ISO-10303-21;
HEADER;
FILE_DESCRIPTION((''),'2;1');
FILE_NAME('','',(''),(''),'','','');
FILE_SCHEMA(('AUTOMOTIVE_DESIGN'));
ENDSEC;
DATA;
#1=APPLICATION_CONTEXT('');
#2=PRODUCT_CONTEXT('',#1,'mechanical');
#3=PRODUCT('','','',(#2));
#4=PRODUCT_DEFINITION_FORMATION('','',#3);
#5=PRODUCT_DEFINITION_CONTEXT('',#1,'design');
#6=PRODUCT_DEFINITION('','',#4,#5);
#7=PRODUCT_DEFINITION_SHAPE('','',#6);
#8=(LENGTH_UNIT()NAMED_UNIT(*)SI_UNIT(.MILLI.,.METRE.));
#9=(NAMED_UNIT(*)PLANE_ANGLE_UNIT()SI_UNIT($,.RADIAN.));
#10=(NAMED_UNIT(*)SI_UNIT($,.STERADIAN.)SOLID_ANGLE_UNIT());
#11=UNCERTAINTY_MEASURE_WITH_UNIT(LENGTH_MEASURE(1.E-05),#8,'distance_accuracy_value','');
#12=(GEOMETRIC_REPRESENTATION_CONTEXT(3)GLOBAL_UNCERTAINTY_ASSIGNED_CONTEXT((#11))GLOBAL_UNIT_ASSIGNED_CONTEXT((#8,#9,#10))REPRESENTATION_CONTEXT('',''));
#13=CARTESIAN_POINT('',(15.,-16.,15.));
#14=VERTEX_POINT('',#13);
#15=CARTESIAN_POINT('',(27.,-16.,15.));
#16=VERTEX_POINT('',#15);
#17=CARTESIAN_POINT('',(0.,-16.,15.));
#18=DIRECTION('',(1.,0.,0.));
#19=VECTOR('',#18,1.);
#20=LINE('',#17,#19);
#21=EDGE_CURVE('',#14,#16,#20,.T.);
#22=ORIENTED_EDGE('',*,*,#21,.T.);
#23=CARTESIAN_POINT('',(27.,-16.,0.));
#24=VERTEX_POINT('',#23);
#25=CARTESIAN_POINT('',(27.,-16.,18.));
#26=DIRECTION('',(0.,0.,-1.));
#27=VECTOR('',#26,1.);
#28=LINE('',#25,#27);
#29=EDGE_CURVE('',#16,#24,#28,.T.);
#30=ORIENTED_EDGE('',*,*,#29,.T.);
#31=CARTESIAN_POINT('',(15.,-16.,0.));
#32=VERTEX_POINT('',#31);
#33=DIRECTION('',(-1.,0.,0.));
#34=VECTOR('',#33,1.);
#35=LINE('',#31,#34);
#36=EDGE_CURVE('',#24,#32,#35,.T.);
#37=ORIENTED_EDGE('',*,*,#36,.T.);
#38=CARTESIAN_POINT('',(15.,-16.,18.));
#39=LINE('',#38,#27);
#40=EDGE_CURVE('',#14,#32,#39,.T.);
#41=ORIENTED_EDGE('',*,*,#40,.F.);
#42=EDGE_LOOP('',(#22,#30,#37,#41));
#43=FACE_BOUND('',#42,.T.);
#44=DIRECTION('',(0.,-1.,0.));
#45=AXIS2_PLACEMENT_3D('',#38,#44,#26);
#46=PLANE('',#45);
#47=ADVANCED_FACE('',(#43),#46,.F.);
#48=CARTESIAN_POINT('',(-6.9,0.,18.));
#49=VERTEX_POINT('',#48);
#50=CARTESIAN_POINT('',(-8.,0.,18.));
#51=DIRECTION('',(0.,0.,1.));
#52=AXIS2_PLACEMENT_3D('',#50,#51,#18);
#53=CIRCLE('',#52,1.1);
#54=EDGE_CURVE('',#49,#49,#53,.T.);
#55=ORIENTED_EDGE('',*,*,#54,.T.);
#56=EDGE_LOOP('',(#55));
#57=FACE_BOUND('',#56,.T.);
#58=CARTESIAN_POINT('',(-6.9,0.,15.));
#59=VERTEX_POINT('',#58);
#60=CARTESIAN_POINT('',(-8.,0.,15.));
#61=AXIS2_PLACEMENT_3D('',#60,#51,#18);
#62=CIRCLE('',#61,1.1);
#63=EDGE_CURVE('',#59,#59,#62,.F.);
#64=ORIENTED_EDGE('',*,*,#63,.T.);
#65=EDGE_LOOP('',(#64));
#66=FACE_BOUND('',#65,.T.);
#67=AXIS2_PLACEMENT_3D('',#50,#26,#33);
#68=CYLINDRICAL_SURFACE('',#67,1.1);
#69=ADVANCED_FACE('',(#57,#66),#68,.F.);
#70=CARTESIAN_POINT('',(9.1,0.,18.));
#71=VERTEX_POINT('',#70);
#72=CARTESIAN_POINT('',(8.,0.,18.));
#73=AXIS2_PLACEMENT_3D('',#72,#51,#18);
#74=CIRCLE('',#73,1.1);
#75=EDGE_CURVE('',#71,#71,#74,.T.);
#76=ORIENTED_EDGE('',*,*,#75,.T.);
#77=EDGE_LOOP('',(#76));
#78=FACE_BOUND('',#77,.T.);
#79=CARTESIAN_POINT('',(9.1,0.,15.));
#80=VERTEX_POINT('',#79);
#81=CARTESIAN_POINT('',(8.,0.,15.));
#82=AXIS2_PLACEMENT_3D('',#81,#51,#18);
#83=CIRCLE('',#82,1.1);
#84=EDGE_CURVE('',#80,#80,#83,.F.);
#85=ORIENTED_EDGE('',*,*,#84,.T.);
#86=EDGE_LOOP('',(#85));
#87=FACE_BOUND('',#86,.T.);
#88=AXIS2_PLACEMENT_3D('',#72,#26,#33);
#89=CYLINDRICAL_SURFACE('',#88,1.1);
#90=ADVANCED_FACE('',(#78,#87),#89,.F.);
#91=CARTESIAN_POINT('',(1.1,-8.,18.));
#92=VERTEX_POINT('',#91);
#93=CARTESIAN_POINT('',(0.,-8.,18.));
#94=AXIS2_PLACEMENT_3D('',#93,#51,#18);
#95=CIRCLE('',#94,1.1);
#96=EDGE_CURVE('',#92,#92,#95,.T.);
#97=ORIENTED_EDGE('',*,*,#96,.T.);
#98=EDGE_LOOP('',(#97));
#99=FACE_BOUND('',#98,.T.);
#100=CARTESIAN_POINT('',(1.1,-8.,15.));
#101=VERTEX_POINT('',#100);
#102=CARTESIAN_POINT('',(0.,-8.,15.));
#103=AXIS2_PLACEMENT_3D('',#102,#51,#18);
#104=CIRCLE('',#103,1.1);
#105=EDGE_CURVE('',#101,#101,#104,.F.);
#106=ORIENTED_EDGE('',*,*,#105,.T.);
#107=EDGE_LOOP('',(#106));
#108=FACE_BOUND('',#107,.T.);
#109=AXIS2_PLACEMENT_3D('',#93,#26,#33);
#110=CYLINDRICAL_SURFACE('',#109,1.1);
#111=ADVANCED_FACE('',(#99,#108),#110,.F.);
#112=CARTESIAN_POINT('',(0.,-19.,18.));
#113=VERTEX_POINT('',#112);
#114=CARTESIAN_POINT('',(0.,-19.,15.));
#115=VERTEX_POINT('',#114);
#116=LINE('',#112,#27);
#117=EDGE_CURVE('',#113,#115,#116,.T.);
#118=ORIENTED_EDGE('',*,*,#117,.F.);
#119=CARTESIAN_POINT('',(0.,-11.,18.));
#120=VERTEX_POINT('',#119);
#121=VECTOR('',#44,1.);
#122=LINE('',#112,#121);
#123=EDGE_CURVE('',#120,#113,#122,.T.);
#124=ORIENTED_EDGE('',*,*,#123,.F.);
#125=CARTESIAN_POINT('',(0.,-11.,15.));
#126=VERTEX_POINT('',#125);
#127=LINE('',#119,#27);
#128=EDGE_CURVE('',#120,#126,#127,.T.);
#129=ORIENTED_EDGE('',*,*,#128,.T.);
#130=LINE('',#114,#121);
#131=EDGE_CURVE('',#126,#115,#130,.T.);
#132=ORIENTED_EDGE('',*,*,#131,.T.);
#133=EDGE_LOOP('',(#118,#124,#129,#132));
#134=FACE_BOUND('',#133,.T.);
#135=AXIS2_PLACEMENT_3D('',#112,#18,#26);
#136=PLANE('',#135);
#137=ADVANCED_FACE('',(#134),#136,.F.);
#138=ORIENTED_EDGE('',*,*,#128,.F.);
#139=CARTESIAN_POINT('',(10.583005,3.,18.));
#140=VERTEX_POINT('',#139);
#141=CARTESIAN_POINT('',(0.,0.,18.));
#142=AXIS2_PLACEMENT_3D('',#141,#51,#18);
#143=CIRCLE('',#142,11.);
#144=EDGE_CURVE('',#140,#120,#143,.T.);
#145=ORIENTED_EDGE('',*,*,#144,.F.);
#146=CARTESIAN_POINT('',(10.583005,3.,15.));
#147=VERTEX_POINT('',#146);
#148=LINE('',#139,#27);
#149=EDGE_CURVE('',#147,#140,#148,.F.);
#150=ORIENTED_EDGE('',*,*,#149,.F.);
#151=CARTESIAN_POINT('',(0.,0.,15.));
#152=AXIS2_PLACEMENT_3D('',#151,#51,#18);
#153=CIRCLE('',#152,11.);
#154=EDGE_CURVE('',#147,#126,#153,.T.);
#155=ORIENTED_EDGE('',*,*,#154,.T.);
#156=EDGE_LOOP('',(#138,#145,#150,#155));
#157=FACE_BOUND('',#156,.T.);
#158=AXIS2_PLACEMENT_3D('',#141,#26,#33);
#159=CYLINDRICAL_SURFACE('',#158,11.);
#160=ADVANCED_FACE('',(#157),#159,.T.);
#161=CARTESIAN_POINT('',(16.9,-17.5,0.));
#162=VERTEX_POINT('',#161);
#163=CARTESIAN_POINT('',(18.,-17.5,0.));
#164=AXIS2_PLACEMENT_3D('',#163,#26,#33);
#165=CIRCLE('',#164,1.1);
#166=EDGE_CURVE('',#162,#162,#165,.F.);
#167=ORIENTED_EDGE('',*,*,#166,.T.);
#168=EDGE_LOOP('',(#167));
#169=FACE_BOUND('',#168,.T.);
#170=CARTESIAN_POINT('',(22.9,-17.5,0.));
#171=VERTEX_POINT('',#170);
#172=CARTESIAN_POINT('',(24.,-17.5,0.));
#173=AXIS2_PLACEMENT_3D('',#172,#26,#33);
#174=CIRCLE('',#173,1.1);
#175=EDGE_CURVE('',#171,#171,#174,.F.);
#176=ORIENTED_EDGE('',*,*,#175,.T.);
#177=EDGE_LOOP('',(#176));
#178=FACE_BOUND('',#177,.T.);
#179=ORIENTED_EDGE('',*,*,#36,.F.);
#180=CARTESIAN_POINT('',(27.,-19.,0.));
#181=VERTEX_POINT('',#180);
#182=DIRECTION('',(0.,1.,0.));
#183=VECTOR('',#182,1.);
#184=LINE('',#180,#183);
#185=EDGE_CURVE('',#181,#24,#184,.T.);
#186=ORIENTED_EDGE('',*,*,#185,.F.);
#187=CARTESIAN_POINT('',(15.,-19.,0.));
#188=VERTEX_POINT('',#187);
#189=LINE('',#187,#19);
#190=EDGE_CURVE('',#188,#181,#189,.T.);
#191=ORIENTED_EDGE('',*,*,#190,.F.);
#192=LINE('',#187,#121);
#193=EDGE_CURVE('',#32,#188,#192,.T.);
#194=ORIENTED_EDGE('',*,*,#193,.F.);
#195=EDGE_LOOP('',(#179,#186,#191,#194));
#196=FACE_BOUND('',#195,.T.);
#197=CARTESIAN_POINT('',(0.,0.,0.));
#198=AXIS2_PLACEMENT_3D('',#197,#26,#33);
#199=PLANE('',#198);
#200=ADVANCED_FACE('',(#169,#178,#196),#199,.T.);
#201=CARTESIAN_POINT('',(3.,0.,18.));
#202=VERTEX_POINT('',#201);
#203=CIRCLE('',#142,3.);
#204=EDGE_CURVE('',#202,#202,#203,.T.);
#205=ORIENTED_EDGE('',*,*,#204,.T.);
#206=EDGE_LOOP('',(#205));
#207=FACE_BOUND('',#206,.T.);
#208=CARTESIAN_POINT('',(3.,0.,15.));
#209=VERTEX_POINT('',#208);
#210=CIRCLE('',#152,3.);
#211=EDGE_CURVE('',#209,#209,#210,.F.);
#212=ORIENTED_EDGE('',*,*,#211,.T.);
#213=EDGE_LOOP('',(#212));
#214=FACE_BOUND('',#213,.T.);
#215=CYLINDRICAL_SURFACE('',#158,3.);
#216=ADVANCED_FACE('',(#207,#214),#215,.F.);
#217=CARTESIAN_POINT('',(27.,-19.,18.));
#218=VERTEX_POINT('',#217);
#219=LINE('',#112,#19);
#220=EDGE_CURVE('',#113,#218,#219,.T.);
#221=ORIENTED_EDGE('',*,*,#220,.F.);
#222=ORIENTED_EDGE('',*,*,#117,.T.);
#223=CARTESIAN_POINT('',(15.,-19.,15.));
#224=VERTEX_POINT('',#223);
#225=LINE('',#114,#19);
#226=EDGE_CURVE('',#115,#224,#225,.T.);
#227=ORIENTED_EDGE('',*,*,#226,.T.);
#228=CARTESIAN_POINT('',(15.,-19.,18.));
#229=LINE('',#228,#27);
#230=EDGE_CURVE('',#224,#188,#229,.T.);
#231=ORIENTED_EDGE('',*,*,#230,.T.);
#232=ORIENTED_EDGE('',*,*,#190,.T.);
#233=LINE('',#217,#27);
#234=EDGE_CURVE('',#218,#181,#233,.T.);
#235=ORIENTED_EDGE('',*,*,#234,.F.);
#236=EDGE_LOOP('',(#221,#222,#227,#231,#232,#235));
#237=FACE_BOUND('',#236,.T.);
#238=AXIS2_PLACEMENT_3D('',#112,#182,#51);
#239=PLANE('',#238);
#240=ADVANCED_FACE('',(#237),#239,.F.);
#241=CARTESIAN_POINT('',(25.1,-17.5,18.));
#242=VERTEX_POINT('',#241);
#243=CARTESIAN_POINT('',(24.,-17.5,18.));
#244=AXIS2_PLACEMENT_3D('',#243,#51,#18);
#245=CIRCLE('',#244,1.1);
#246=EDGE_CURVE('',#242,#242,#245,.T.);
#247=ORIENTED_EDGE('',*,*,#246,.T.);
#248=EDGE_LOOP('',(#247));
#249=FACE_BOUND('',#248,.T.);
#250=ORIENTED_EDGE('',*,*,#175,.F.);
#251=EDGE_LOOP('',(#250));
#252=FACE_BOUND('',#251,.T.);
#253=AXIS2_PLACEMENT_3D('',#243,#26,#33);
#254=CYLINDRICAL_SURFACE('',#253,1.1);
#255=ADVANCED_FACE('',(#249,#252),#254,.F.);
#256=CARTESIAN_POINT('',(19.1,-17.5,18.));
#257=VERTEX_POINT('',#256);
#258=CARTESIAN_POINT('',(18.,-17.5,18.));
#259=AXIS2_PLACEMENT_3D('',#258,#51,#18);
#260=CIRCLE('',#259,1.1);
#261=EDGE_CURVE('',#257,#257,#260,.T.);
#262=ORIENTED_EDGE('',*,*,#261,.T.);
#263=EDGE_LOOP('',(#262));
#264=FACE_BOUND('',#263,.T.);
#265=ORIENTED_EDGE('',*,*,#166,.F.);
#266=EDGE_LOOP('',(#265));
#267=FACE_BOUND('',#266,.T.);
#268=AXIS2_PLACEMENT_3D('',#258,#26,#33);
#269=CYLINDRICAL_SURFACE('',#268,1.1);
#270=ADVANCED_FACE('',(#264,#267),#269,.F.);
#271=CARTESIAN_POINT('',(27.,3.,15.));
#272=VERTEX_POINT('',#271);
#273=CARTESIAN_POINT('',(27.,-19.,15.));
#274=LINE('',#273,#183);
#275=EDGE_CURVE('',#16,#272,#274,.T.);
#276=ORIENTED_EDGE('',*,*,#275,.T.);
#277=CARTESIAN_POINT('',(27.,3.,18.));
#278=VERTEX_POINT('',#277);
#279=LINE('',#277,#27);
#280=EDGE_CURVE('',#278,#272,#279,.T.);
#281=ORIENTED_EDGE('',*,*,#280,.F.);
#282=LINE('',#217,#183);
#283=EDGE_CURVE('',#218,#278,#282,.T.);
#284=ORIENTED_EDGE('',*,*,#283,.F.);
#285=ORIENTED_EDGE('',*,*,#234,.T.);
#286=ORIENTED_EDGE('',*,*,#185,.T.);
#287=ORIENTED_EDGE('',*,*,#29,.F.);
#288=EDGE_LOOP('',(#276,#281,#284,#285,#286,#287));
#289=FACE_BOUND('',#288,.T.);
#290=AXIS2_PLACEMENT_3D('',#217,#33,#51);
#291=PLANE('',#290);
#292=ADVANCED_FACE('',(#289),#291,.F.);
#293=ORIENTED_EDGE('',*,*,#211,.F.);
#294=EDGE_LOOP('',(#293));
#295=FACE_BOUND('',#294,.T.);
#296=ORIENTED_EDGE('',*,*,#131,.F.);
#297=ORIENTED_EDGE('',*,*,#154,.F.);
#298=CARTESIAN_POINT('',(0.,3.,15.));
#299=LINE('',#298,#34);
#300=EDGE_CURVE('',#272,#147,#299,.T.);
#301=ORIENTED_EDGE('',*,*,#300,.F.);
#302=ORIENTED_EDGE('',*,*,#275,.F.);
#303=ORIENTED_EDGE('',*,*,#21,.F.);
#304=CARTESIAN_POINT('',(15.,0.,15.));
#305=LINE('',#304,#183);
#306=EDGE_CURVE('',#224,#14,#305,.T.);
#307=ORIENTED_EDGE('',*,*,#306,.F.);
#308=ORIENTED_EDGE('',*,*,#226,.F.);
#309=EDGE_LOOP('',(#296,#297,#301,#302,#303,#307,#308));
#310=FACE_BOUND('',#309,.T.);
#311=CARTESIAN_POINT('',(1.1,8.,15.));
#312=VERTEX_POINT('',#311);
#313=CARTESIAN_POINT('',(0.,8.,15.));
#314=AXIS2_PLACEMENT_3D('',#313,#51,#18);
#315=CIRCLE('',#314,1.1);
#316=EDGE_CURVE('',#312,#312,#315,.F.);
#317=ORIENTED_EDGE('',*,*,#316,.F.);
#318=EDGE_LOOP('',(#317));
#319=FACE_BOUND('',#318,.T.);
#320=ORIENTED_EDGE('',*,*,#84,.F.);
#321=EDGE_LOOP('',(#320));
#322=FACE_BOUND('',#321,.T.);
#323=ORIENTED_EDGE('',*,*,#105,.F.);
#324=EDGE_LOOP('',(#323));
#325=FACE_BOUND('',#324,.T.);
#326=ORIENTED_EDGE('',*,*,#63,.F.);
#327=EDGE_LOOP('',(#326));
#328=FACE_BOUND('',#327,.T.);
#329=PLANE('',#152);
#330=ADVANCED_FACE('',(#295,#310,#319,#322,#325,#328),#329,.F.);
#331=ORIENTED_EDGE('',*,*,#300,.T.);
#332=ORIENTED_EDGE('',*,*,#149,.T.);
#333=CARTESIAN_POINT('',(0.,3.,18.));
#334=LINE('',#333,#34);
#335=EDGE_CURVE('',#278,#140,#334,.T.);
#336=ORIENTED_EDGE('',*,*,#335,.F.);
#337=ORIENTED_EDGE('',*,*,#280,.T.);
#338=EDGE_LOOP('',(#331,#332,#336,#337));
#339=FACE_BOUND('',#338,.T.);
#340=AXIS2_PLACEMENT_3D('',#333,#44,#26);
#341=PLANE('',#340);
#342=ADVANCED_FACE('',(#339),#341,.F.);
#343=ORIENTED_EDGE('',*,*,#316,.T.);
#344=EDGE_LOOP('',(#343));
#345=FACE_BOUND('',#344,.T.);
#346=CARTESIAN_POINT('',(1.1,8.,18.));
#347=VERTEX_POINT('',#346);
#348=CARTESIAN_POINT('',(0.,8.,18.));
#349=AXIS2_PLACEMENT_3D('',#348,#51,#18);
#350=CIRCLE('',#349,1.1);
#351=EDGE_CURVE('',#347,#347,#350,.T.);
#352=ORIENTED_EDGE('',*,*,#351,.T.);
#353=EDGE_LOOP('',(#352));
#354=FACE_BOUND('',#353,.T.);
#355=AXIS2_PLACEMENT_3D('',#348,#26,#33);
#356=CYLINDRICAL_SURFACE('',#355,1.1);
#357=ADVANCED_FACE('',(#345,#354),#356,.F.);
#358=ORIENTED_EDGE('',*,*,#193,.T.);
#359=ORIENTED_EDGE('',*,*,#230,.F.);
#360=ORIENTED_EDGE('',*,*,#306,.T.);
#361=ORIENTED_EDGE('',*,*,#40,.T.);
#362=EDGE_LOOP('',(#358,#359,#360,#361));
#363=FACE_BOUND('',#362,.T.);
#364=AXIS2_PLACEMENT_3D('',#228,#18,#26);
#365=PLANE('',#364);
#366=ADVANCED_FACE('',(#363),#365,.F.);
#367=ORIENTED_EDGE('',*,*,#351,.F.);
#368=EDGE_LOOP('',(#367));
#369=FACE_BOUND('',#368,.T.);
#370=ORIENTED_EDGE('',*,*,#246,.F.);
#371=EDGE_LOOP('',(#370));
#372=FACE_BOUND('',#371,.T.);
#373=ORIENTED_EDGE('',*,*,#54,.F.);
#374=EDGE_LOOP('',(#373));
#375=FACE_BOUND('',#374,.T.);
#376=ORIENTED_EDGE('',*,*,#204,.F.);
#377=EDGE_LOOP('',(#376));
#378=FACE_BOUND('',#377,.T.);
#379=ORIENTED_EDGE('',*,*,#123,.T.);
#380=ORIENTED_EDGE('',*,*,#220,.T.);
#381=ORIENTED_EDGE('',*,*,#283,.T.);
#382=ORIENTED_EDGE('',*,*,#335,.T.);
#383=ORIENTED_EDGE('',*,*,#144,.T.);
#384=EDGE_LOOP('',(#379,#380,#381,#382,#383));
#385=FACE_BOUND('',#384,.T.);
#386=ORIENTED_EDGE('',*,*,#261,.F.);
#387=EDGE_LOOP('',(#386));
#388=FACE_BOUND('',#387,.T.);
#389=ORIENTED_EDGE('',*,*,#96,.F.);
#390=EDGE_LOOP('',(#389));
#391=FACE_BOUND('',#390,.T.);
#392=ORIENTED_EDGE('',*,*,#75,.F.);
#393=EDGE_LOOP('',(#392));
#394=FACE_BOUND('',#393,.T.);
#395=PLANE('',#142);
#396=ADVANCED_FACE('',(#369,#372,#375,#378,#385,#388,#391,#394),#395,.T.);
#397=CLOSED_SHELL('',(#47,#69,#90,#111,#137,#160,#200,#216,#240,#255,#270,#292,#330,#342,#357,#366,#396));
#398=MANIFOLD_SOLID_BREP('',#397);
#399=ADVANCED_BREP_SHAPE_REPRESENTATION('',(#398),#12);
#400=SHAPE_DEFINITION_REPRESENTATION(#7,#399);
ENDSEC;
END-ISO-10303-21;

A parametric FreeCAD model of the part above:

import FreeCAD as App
import Part
import Sketcher

V = App.Vector


def add_polygon(sketch, points):
    """Adds a closed chain of lines whose ends are joined by coincident constraints."""
    first, n = sketch.GeometryCount, len(points)
    for a, b in zip(points, points[1:] + points[:1]):
        sketch.addGeometry(Part.LineSegment(App.Vector(*a, 0), App.Vector(*b, 0)), False)
    for i in range(n):
        sketch.addConstraint(Sketcher.Constraint("Coincident", first + i, 2, first + (i + 1) % n, 1))

doc = App.newDocument("Part")
body = doc.addObject("PartDesign::Body", "Body")

# Sketch on XY plane
sketch1 = body.newObject("Sketcher::SketchObject", "Sketch")
sketch1.AttachmentSupport = (doc.getObject("XY_Plane"), [""])
sketch1.MapMode = "FlatFace"
sketch1.AttachmentOffset = App.Placement(V(0, 0, 15), App.Rotation())
sketch1.addGeometry(Part.Circle(V(0, 0, 0), V(0, 0, 1), 11), False)
sketch1.addConstraint(Sketcher.Constraint("Coincident", 0, 3, -1, 1))
sketch1.addConstraint(Sketcher.Constraint("Diameter", 0, 22.0))
pad1 = body.newObject("PartDesign::Pad", "Pad")
pad1.Profile = sketch1
pad1.Length = 3

# Sketch on XY plane
sketch2 = body.newObject("Sketcher::SketchObject", "Sketch001")
sketch2.AttachmentSupport = (doc.getObject("XY_Plane"), [""])
sketch2.MapMode = "FlatFace"
sketch2.AttachmentOffset = App.Placement(V(0, 0, 15), App.Rotation())
add_polygon(sketch2, [(0, 3), (0, -19), (27, -19), (27, 3)])  # lines 0-3
sketch2.addConstraint(Sketcher.Constraint("Vertical", 0))
sketch2.addConstraint(Sketcher.Constraint("Horizontal", 1))
sketch2.addConstraint(Sketcher.Constraint("Vertical", 2))
sketch2.addConstraint(Sketcher.Constraint("Horizontal", 3))
sketch2.addConstraint(Sketcher.Constraint("PointOnObject", 0, 2, -2))
sketch2.addConstraint(Sketcher.Constraint("DistanceX", 1, 1, 1, 2, 27.0))
sketch2.addConstraint(Sketcher.Constraint("DistanceY", 0, 2, 0, 1, 22.0))
sketch2.addConstraint(Sketcher.Constraint("DistanceY", 0, 2, -1, 1, 19.0))
pad2 = body.newObject("PartDesign::Pad", "Pad001")
pad2.Profile = sketch2
pad2.Length = 3

# Sketch on XY plane
sketch3 = body.newObject("Sketcher::SketchObject", "Sketch002")
sketch3.AttachmentSupport = (doc.getObject("XY_Plane"), [""])
sketch3.MapMode = "FlatFace"
add_polygon(sketch3, [(15, -16), (15, -19), (27, -19), (27, -16)])  # lines 0-3
sketch3.addConstraint(Sketcher.Constraint("Vertical", 0))
sketch3.addConstraint(Sketcher.Constraint("Horizontal", 1))
sketch3.addConstraint(Sketcher.Constraint("Vertical", 2))
sketch3.addConstraint(Sketcher.Constraint("Horizontal", 3))
sketch3.addConstraint(Sketcher.Constraint("DistanceX", 1, 1, 1, 2, 12.0))
sketch3.addConstraint(Sketcher.Constraint("DistanceY", 0, 2, 0, 1, 3.0))
sketch3.addConstraint(Sketcher.Constraint("DistanceX", -1, 1, 0, 2, 15.0))
sketch3.addConstraint(Sketcher.Constraint("DistanceY", 0, 2, -1, 1, 19.0))
pad3 = body.newObject("PartDesign::Pad", "Pad002")
pad3.Profile = sketch3
pad3.Length = 18

# Sketch on XY plane
sketch4 = body.newObject("Sketcher::SketchObject", "Sketch003")
sketch4.AttachmentSupport = (doc.getObject("XY_Plane"), [""])
sketch4.MapMode = "FlatFace"
sketch4.AttachmentOffset = App.Placement(V(0, 0, -50), App.Rotation())
sketch4.addGeometry(Part.Circle(V(0, 0, 0), V(0, 0, 1), 3), False)
sketch4.addConstraint(Sketcher.Constraint("Coincident", 0, 3, -1, 1))
sketch4.addConstraint(Sketcher.Constraint("Diameter", 0, 6.0))
pocket1 = body.newObject("PartDesign::Pocket", "Pocket")
pocket1.Profile = sketch4
pocket1.Type = "ThroughAll"
pocket1.Reversed = True

# Sketch on XY plane
sketch5 = body.newObject("Sketcher::SketchObject", "Sketch004")
sketch5.AttachmentSupport = (doc.getObject("XY_Plane"), [""])
sketch5.MapMode = "FlatFace"
sketch5.AttachmentOffset = App.Placement(V(0, 0, -50), App.Rotation())
sketch5.addGeometry(Part.Circle(V(0, -8, 0), V(0, 0, 1), 1.1), False)
sketch5.addGeometry(Part.Circle(V(0, 8, 0), V(0, 0, 1), 1.1), False)
sketch5.addGeometry(Part.Circle(V(-8, 0, 0), V(0, 0, 1), 1.1), False)
sketch5.addGeometry(Part.Circle(V(8, 0, 0), V(0, 0, 1), 1.1), False)
sketch5.addConstraint(Sketcher.Constraint("Equal", 0, 1))
sketch5.addConstraint(Sketcher.Constraint("Equal", 1, 2))
sketch5.addConstraint(Sketcher.Constraint("Equal", 2, 3))
sketch5.addConstraint(Sketcher.Constraint("Symmetric", 0, 3, 1, 3, -1, 1))
sketch5.addConstraint(Sketcher.Constraint("Symmetric", 2, 3, 3, 3, -1, 1))
sketch5.addConstraint(Sketcher.Constraint("PointOnObject", 0, 3, -2))
sketch5.addConstraint(Sketcher.Constraint("PointOnObject", 2, 3, -1))
sketch5.addConstraint(Sketcher.Constraint("Diameter", 0, 2.2))
sketch5.addConstraint(Sketcher.Constraint("DistanceY", 0, 3, -1, 1, 8.0))
sketch5.addConstraint(Sketcher.Constraint("DistanceX", 2, 3, -1, 1, 8.0))
pocket2 = body.newObject("PartDesign::Pocket", "Pocket001")
pocket2.Profile = sketch5
pocket2.Type = "ThroughAll"
pocket2.Reversed = True

# Sketch on XY plane
sketch6 = body.newObject("Sketcher::SketchObject", "Sketch005")
sketch6.AttachmentSupport = (doc.getObject("XY_Plane"), [""])
sketch6.MapMode = "FlatFace"
sketch6.AttachmentOffset = App.Placement(V(0, 0, -50), App.Rotation())
sketch6.addGeometry(Part.Circle(V(18, -17.5, 0), V(0, 0, 1), 1.1), False)
sketch6.addGeometry(Part.Circle(V(24, -17.5, 0), V(0, 0, 1), 1.1), False)
sketch6.addConstraint(Sketcher.Constraint("Equal", 0, 1))
sketch6.addConstraint(Sketcher.Constraint("Horizontal", 0, 3, 1, 3))
sketch6.addConstraint(Sketcher.Constraint("Diameter", 0, 2.2))
sketch6.addConstraint(Sketcher.Constraint("DistanceX", -1, 1, 0, 3, 18.0))
sketch6.addConstraint(Sketcher.Constraint("DistanceX", -1, 1, 1, 3, 24.0))
sketch6.addConstraint(Sketcher.Constraint("DistanceY", 0, 3, -1, 1, 17.5))
pocket3 = body.newObject("PartDesign::Pocket", "Pocket002")
pocket3.Profile = sketch6
pocket3.Type = "ThroughAll"
pocket3.Reversed = True

doc.recompute()
